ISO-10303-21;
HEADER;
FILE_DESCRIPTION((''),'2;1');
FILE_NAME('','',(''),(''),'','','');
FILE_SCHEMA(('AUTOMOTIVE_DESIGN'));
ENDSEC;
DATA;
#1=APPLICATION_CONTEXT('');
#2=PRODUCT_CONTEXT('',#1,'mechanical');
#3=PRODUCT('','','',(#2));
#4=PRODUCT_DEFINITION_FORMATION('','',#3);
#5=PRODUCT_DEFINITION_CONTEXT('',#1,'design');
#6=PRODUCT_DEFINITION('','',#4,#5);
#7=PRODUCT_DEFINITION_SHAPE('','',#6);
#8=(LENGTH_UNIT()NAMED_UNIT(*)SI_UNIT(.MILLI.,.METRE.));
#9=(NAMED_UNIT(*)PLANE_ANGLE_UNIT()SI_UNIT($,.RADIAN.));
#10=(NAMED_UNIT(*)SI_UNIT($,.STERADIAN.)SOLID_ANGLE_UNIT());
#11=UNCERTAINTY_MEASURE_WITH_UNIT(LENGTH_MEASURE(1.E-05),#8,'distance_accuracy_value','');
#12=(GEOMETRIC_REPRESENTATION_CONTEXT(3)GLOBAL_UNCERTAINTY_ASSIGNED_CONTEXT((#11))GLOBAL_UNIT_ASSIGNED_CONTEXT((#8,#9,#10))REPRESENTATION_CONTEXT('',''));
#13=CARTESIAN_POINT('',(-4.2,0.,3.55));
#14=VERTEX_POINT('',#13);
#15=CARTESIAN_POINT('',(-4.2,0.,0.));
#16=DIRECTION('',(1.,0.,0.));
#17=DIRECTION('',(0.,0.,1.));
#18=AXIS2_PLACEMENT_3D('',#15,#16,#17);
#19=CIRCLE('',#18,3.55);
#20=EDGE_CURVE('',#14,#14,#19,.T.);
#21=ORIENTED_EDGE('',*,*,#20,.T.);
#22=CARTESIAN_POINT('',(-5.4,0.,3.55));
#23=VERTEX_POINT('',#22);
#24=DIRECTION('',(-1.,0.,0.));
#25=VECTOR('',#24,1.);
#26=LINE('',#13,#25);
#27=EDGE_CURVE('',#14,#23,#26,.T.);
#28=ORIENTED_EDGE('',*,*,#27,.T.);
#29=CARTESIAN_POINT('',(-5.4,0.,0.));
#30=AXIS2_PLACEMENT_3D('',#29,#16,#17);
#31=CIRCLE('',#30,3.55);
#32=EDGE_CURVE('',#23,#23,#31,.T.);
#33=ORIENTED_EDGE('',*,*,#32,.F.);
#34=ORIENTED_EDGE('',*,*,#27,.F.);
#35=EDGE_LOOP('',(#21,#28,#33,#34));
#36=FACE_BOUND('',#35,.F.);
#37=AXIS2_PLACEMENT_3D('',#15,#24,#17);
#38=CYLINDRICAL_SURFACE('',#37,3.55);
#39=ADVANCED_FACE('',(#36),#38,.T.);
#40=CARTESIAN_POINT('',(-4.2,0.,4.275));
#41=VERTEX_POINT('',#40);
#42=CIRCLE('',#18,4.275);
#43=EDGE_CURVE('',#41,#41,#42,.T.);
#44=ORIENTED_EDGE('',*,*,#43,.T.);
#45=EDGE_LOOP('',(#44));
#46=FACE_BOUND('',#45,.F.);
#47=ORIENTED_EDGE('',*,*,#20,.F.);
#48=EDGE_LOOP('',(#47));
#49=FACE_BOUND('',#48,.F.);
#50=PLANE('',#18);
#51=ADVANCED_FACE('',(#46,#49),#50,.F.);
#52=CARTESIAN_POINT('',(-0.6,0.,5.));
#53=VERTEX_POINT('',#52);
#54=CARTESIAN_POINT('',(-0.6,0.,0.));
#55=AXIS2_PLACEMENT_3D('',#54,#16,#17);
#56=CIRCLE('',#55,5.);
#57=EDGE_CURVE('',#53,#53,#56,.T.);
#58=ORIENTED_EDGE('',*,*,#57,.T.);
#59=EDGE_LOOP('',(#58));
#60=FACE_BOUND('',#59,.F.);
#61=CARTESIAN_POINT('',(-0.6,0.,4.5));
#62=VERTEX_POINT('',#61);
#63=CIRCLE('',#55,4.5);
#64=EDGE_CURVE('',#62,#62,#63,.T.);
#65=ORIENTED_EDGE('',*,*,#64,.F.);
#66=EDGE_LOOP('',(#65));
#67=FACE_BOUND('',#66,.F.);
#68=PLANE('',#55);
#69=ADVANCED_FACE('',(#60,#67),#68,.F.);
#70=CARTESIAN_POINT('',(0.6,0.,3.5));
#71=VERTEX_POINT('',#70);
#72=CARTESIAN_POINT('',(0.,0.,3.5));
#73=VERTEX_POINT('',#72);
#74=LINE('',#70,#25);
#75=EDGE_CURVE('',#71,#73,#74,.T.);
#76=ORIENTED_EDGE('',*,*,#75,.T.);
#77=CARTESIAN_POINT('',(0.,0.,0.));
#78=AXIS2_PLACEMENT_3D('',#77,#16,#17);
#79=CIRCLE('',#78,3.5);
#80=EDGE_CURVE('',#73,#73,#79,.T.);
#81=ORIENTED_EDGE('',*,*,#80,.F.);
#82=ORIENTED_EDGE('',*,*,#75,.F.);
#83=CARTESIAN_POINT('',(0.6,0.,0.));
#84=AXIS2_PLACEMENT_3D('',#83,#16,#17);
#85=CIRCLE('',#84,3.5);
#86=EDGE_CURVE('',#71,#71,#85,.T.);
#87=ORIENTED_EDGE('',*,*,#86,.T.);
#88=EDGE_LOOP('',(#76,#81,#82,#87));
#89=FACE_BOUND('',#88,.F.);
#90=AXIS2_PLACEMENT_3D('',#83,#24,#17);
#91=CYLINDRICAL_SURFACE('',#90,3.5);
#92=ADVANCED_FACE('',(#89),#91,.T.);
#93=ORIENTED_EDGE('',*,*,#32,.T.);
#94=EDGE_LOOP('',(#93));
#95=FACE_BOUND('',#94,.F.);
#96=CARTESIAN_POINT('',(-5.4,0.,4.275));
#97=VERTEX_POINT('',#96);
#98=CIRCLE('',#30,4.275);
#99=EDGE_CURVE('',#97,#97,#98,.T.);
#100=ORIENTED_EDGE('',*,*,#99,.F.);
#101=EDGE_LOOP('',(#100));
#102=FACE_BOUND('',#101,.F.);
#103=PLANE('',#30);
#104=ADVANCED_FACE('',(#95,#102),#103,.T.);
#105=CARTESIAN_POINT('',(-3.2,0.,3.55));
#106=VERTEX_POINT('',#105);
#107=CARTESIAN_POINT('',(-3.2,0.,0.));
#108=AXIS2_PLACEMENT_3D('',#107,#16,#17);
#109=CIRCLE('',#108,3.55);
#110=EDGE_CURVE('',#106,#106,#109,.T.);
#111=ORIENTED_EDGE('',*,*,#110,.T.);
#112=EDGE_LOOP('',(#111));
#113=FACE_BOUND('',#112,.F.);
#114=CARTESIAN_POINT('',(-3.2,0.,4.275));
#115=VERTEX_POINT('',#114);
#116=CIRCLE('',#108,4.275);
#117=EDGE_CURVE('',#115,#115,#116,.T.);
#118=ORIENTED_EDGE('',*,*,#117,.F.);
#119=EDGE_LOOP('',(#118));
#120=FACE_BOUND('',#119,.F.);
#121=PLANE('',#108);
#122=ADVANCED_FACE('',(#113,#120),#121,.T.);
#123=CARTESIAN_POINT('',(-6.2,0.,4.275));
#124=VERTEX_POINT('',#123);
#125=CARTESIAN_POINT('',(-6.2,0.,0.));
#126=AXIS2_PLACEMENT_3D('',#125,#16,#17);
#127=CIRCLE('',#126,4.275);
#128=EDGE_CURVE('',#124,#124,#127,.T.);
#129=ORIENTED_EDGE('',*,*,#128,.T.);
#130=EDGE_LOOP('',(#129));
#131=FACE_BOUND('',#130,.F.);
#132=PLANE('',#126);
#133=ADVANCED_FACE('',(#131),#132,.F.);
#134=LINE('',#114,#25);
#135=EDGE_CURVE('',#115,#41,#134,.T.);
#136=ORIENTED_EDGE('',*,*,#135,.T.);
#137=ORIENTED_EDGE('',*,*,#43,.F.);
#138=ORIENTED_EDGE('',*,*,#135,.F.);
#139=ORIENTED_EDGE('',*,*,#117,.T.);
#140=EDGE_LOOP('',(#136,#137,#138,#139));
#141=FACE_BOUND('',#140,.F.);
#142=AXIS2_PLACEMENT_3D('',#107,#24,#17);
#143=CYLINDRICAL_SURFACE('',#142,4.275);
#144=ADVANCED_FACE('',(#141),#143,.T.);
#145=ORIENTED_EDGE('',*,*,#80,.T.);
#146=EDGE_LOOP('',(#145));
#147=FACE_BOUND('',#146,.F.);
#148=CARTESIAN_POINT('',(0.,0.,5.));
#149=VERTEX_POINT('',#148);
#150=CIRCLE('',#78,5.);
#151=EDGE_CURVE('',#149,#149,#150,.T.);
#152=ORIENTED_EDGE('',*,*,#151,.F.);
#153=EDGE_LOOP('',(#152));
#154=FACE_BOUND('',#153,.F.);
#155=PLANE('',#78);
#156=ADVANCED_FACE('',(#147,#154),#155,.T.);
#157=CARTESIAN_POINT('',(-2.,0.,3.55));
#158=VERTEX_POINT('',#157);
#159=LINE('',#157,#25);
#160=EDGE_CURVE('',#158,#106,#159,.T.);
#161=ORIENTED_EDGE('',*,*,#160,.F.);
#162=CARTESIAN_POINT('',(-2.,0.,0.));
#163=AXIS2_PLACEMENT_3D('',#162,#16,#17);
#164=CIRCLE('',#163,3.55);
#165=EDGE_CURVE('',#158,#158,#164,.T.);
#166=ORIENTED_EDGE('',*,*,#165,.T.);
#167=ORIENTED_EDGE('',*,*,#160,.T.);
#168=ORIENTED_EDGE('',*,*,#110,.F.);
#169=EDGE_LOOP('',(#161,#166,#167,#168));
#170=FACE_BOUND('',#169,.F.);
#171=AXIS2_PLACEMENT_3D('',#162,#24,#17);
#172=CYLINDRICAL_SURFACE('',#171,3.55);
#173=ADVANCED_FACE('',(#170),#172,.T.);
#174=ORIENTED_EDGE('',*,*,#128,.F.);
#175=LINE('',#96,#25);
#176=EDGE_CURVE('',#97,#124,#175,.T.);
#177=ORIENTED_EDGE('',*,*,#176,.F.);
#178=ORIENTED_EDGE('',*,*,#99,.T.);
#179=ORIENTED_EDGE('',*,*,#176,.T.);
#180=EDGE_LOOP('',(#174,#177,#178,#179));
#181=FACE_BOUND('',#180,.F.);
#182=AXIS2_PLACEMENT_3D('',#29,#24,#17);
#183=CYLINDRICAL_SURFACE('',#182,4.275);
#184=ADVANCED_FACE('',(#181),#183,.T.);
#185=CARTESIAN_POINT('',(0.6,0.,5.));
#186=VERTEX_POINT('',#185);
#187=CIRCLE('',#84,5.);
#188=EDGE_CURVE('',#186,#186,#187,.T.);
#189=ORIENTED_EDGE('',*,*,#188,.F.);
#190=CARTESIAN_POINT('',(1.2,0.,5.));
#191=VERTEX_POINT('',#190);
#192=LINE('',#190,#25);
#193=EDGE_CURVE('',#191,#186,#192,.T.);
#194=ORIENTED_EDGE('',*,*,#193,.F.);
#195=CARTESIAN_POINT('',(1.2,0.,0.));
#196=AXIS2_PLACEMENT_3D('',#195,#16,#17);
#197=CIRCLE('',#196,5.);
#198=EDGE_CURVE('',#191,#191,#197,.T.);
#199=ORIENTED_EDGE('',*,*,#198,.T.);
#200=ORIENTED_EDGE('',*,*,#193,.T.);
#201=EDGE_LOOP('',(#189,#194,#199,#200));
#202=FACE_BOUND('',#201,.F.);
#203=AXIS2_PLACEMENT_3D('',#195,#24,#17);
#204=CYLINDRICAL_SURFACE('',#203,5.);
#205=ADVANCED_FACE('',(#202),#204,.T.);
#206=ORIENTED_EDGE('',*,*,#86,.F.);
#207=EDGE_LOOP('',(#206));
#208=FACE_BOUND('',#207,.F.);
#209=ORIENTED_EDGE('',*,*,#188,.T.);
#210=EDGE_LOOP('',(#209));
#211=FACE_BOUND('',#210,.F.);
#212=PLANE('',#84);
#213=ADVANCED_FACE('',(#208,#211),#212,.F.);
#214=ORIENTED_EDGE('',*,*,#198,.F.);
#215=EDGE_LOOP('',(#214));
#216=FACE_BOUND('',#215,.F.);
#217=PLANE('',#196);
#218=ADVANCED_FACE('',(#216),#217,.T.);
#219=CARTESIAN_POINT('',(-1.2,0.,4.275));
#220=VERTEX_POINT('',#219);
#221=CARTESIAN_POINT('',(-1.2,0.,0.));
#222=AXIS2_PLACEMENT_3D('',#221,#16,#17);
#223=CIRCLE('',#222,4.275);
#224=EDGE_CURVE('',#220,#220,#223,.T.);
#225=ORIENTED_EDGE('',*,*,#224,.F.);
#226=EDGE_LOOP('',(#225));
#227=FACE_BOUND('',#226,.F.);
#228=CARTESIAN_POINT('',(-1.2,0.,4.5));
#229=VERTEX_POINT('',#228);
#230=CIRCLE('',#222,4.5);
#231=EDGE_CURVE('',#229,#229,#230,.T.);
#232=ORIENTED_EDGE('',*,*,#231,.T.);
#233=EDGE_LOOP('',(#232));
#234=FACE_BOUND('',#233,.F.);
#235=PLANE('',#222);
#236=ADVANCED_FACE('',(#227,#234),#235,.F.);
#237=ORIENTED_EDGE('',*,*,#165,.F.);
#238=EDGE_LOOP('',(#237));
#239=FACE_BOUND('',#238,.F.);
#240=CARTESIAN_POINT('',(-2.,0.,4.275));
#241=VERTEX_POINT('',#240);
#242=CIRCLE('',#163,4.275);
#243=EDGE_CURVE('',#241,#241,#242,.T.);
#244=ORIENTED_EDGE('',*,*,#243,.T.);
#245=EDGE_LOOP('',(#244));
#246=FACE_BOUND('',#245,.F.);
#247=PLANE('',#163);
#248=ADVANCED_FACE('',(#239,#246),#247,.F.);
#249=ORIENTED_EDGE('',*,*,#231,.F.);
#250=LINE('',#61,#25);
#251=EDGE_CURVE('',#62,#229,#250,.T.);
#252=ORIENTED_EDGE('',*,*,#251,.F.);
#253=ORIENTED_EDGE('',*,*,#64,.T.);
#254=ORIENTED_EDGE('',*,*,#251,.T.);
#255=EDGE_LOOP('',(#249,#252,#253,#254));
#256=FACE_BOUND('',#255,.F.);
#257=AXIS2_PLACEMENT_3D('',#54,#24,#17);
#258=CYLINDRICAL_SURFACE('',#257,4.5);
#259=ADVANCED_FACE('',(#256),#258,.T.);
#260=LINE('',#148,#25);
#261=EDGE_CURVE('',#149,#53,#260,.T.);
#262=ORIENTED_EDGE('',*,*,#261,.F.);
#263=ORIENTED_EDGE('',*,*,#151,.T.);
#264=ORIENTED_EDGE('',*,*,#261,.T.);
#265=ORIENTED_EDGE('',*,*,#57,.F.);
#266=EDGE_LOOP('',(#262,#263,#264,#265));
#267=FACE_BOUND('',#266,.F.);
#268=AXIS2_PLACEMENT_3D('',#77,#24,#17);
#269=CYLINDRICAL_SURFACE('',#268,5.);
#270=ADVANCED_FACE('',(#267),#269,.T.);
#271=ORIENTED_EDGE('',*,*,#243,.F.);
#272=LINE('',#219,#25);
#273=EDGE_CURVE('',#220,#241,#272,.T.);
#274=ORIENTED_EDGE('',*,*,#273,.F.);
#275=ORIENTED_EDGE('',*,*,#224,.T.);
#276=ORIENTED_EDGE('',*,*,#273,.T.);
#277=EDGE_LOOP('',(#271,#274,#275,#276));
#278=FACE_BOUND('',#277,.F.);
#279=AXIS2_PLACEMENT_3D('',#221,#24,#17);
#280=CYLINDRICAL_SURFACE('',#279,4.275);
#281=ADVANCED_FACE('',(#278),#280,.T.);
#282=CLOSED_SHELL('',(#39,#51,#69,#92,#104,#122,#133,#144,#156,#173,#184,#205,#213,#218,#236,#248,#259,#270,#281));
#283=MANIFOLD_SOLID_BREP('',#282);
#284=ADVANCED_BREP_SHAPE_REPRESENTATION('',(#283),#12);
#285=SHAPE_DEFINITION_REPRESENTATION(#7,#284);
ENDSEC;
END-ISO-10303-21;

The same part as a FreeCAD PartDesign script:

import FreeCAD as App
import Part
import Sketcher
from FreeCAD import Vector


def add_polygon(sketch, points):
    """Adds a closed chain of lines whose ends are joined by coincident constraints."""
    first, n = sketch.GeometryCount, len(points)
    for a, b in zip(points, points[1:] + points[:1]):
        sketch.addGeometry(Part.LineSegment(App.Vector(*a, 0), App.Vector(*b, 0)), False)
    for i in range(n):
        sketch.addConstraint(Sketcher.Constraint("Coincident", first + i, 2, first + (i + 1) % n, 1))

doc = App.newDocument("Part")
body = doc.addObject("PartDesign::Body", "Body")

# Sketch on XZ plane
sketch1 = body.newObject("Sketcher::SketchObject", "Sketch")
sketch1.AttachmentSupport = (doc.getObject("XZ_Plane"), [""])
sketch1.MapMode = "FlatFace"
add_polygon(sketch1, [(-5.4, 4.28), (-6.2, 4.28), (-6.2, 0), (1.2, 0), (1.2, 5), (0.6, 5), (0.6, 3.5), (0, 3.5), (0, 5), (-0.6, 5), (-0.6, 4.5), (-1.2, 4.5), (-1.2, 4.28), (-2, 4.28), (-2, 3.55), (-3.2, 3.55), (-3.2, 4.28), (-4.2, 4.28), (-4.2, 3.55), (-5.4, 3.55)])  # lines 0-19
sketch1.addConstraint([
    Sketcher.Constraint("Horizontal", 0),
    Sketcher.Constraint("Vertical", 1),
    Sketcher.Constraint("Horizontal", 2),
    Sketcher.Constraint("Vertical", 3),
    Sketcher.Constraint("Horizontal", 4),
    Sketcher.Constraint("Vertical", 5),
    Sketcher.Constraint("Horizontal", 6),
    Sketcher.Constraint("Vertical", 7),
    Sketcher.Constraint("Horizontal", 8),
    Sketcher.Constraint("Vertical", 9),
    Sketcher.Constraint("Horizontal", 10),
    Sketcher.Constraint("Vertical", 11),
    Sketcher.Constraint("Horizontal", 12),
    Sketcher.Constraint("Vertical", 13),
    Sketcher.Constraint("Horizontal", 14),
    Sketcher.Constraint("Vertical", 15),
    Sketcher.Constraint("Horizontal", 16),
    Sketcher.Constraint("Vertical", 17),
    Sketcher.Constraint("Horizontal", 18),
    Sketcher.Constraint("Vertical", 19),
    Sketcher.Constraint("Symmetric", 4, 2, 8, 2, -2),
    Sketcher.Constraint("PointOnObject", 1, 2, -1),
    Sketcher.Constraint("PointOnObject", 6, 2, -2),
    Sketcher.Constraint("Horizontal", 0, 2, 11, 2),
    Sketcher.Constraint("Horizontal", 12, 2, 15, 2),
    Sketcher.Constraint("Horizontal", 14, 2, 17, 2),
    Sketcher.Constraint("Equal", 4, 6),
    Sketcher.Constraint("Equal", 8, 10),
    Sketcher.Constraint("Equal", 0, 12),
    Sketcher.Constraint("Equal", 14, 18),
    Sketcher.Constraint("DistanceX", 16, 2, 16, 1, 1.0),
    Sketcher.Constraint("DistanceY", 3, 1, 3, 2, 5.0),
    Sketcher.Constraint("DistanceX", 0, 2, 0, 1, 0.8),
    Sketcher.Constraint("DistanceX", 2, 1, 2, 2, 7.4),
    Sketcher.Constraint("DistanceX", 4, 2, 4, 1, 0.6),
    Sketcher.Constraint("DistanceY", 5, 2, 5, 1, 1.5),
    Sketcher.Constraint("DistanceY", 9, 2, 9, 1, 0.5),
    Sketcher.Constraint("DistanceY", 1, 2, 1, 1, 4.275),
    Sketcher.Constraint("DistanceY", 13, 2, 13, 1, 0.725),
])
revolution = body.newObject("PartDesign::Revolution", "Revolution")
revolution.Profile = sketch1
revolution.ReferenceAxis = (sketch1, ["H_Axis"])
revolution.Angle = 360

doc.recompute()
